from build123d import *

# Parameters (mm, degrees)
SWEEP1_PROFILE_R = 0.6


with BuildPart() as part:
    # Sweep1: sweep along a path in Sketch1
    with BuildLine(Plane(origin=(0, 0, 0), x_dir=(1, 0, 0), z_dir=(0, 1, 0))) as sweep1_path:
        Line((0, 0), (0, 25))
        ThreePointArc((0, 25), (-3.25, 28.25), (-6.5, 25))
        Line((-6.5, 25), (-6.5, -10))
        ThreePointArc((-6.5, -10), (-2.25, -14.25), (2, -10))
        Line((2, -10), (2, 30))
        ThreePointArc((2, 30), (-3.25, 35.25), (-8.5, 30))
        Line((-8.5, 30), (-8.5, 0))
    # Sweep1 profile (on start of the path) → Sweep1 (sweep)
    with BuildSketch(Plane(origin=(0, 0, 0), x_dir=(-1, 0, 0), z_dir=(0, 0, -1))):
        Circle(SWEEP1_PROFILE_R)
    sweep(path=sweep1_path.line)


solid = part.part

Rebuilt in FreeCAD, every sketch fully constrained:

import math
import FreeCAD as App
import Part
import Sketcher
from FreeCAD import Vector
Q = App.Units.Quantity

doc = App.newDocument("Part")
body = doc.addObject("PartDesign::Body", "Body")

# Sketch on XY plane
sketch1 = body.newObject("Sketcher::SketchObject", "Sketch")
sketch1.AttachmentSupport = (doc.getObject("XY_Plane"), [""])
sketch1.MapMode = "FlatFace"
sketch1.addGeometry(Part.Circle(Vector(0, 0, 0), Vector(0, 0, 1), 0.6), False)
sketch1.addConstraint([
    Sketcher.Constraint("Coincident", 0, 3, -1, 1),
    Sketcher.Constraint("Diameter", 0, Q("1.2 mm")),
])

# Sketch on XZ plane
sketch2 = body.newObject("Sketcher::SketchObject", "Sketch001")
sketch2.AttachmentSupport = (doc.getObject("XZ_Plane"), [""])
sketch2.MapMode = "FlatFace"
sketch2.addGeometry([
    Part.LineSegment(Vector(0, 0, 0), Vector(0, -25, 0)),  # 0
    Part.ArcOfCircle(Part.Circle(Vector(-3.2, -25, 0), Vector(0, 0, 1), 3.2), math.radians(180), math.radians(360)),  # 1
    Part.LineSegment(Vector(-6.5, -25, 0), Vector(-6.5, 10, 0)),  # 2
    Part.ArcOfCircle(Part.Circle(Vector(-2.2, 10, 0), Vector(0, 0, 1), 4.2), math.radians(0), math.radians(180)),  # 3
    Part.LineSegment(Vector(2, 10, 0), Vector(2, -30, 0)),  # 4
    Part.ArcOfCircle(Part.Circle(Vector(-3.2, -30, 0), Vector(0, 0, 1), 5.2), math.radians(180), math.radians(360)),  # 5
    Part.LineSegment(Vector(-8.5, -30, 0), Vector(-8.5, 0, 0)),  # 6
], False)
sketch2.addConstraint([
    Sketcher.Constraint("Tangent", 0, 2, 1, 2),
    Sketcher.Constraint("Tangent", 1, 1, 2, 1),
    Sketcher.Constraint("Tangent", 2, 2, 3, 2),
    Sketcher.Constraint("Tangent", 3, 1, 4, 1),
    Sketcher.Constraint("Tangent", 4, 2, 5, 2),
    Sketcher.Constraint("Tangent", 5, 1, 6, 1),
    Sketcher.Constraint("Vertical", 0),
    Sketcher.Constraint("Vertical", 2),
    Sketcher.Constraint("Vertical", 4),
    Sketcher.Constraint("Vertical", 6),
    Sketcher.Constraint("Coincident", 0, 1, -1, 1),
    Sketcher.Constraint("PointOnObject", 6, 2, -1),
    Sketcher.Constraint("Vertical", 1, 3, 5, 3),
    Sketcher.Constraint("DistanceY", 0, 2, 0, 1, Q("25 mm")),
    Sketcher.Constraint("DistanceY", 2, 1, 2, 2, Q("35 mm")),
    Sketcher.Constraint("DistanceY", 4, 2, 4, 1, Q("40 mm")),
    Sketcher.Constraint("Radius", 1, Q("3.25 mm")),
    Sketcher.Constraint("Radius", 3, Q("4.25 mm")),
])
doc.recompute()

additivepipe = body.newObject("PartDesign::AdditivePipe", "AdditivePipe")
additivepipe.Profile = sketch1
additivepipe.Spine = (sketch2, ["Edge1", "Edge2", "Edge3", "Edge4", "Edge5", "Edge6", "Edge7"])

doc.recompute()
